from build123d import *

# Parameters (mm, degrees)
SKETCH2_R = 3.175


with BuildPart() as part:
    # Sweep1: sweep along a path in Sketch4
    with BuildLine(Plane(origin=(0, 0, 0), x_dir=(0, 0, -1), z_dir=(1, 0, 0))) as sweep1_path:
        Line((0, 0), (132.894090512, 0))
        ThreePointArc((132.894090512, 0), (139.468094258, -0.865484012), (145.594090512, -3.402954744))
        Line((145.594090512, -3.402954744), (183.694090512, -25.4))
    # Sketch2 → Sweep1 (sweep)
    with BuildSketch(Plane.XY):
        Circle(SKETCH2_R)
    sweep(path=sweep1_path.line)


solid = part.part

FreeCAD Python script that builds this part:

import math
import FreeCAD as App
import Part
import Sketcher

V = App.Vector
Q = App.Units.Quantity

doc = App.newDocument("Part")
body = doc.addObject("PartDesign::Body", "Body")

# Sketch on XY plane
sketch1 = body.newObject("Sketcher::SketchObject", "Sketch")
sketch1.AttachmentSupport = (doc.getObject("XY_Plane"), [""])
sketch1.MapMode = "FlatFace"
sketch1.addGeometry(Part.Circle(V(0, 0, 0), V(0, 0, 1), 3.2), False)
sketch1.addConstraint([
    Sketcher.Constraint("Coincident", 0, 3, -1, 1),
    Sketcher.Constraint("Diameter", 0, Q("0.25 in")),
])

# Sketch on YZ plane
sketch2 = body.newObject("Sketcher::SketchObject", "Sketch001")
sketch2.AttachmentSupport = (doc.getObject("YZ_Plane"), [""])
sketch2.MapMode = "FlatFace"
sketch2.addGeometry([
    Part.LineSegment(V(0, 0, 0), V(0, -133, 0)),
    Part.ArcOfCircle(Part.Circle(V(-25, -133, 0), V(0, 0, 1), 25), math.radians(-30), math.radians(0)),
    Part.LineSegment(V(-3, -146, 0), V(-25, -184, 0)),
], False)
sketch2.addConstraint([
    Sketcher.Constraint("Tangent", 0, 2, 1, 2),
    Sketcher.Constraint("Tangent", 1, 1, 2, 1),
    Sketcher.Constraint("Vertical", 0),
    Sketcher.Constraint("Coincident", 0, 1, -1, 1),
    Sketcher.Constraint("Vertical", 1, 3, 2, 2),
    Sketcher.Constraint("Radius", 1, Q("1 in")),
    Sketcher.Constraint("Angle", 2, Q("-120 deg")),
    Sketcher.Constraint("DistanceY", 0, 2, 0, 1, Q("132.894091 mm")),
])
doc.recompute()

additivepipe = body.newObject("PartDesign::AdditivePipe", "AdditivePipe")
additivepipe.Profile = sketch1
additivepipe.Spine = (sketch2, ["Edge1", "Edge2", "Edge3"])

doc.recompute()
